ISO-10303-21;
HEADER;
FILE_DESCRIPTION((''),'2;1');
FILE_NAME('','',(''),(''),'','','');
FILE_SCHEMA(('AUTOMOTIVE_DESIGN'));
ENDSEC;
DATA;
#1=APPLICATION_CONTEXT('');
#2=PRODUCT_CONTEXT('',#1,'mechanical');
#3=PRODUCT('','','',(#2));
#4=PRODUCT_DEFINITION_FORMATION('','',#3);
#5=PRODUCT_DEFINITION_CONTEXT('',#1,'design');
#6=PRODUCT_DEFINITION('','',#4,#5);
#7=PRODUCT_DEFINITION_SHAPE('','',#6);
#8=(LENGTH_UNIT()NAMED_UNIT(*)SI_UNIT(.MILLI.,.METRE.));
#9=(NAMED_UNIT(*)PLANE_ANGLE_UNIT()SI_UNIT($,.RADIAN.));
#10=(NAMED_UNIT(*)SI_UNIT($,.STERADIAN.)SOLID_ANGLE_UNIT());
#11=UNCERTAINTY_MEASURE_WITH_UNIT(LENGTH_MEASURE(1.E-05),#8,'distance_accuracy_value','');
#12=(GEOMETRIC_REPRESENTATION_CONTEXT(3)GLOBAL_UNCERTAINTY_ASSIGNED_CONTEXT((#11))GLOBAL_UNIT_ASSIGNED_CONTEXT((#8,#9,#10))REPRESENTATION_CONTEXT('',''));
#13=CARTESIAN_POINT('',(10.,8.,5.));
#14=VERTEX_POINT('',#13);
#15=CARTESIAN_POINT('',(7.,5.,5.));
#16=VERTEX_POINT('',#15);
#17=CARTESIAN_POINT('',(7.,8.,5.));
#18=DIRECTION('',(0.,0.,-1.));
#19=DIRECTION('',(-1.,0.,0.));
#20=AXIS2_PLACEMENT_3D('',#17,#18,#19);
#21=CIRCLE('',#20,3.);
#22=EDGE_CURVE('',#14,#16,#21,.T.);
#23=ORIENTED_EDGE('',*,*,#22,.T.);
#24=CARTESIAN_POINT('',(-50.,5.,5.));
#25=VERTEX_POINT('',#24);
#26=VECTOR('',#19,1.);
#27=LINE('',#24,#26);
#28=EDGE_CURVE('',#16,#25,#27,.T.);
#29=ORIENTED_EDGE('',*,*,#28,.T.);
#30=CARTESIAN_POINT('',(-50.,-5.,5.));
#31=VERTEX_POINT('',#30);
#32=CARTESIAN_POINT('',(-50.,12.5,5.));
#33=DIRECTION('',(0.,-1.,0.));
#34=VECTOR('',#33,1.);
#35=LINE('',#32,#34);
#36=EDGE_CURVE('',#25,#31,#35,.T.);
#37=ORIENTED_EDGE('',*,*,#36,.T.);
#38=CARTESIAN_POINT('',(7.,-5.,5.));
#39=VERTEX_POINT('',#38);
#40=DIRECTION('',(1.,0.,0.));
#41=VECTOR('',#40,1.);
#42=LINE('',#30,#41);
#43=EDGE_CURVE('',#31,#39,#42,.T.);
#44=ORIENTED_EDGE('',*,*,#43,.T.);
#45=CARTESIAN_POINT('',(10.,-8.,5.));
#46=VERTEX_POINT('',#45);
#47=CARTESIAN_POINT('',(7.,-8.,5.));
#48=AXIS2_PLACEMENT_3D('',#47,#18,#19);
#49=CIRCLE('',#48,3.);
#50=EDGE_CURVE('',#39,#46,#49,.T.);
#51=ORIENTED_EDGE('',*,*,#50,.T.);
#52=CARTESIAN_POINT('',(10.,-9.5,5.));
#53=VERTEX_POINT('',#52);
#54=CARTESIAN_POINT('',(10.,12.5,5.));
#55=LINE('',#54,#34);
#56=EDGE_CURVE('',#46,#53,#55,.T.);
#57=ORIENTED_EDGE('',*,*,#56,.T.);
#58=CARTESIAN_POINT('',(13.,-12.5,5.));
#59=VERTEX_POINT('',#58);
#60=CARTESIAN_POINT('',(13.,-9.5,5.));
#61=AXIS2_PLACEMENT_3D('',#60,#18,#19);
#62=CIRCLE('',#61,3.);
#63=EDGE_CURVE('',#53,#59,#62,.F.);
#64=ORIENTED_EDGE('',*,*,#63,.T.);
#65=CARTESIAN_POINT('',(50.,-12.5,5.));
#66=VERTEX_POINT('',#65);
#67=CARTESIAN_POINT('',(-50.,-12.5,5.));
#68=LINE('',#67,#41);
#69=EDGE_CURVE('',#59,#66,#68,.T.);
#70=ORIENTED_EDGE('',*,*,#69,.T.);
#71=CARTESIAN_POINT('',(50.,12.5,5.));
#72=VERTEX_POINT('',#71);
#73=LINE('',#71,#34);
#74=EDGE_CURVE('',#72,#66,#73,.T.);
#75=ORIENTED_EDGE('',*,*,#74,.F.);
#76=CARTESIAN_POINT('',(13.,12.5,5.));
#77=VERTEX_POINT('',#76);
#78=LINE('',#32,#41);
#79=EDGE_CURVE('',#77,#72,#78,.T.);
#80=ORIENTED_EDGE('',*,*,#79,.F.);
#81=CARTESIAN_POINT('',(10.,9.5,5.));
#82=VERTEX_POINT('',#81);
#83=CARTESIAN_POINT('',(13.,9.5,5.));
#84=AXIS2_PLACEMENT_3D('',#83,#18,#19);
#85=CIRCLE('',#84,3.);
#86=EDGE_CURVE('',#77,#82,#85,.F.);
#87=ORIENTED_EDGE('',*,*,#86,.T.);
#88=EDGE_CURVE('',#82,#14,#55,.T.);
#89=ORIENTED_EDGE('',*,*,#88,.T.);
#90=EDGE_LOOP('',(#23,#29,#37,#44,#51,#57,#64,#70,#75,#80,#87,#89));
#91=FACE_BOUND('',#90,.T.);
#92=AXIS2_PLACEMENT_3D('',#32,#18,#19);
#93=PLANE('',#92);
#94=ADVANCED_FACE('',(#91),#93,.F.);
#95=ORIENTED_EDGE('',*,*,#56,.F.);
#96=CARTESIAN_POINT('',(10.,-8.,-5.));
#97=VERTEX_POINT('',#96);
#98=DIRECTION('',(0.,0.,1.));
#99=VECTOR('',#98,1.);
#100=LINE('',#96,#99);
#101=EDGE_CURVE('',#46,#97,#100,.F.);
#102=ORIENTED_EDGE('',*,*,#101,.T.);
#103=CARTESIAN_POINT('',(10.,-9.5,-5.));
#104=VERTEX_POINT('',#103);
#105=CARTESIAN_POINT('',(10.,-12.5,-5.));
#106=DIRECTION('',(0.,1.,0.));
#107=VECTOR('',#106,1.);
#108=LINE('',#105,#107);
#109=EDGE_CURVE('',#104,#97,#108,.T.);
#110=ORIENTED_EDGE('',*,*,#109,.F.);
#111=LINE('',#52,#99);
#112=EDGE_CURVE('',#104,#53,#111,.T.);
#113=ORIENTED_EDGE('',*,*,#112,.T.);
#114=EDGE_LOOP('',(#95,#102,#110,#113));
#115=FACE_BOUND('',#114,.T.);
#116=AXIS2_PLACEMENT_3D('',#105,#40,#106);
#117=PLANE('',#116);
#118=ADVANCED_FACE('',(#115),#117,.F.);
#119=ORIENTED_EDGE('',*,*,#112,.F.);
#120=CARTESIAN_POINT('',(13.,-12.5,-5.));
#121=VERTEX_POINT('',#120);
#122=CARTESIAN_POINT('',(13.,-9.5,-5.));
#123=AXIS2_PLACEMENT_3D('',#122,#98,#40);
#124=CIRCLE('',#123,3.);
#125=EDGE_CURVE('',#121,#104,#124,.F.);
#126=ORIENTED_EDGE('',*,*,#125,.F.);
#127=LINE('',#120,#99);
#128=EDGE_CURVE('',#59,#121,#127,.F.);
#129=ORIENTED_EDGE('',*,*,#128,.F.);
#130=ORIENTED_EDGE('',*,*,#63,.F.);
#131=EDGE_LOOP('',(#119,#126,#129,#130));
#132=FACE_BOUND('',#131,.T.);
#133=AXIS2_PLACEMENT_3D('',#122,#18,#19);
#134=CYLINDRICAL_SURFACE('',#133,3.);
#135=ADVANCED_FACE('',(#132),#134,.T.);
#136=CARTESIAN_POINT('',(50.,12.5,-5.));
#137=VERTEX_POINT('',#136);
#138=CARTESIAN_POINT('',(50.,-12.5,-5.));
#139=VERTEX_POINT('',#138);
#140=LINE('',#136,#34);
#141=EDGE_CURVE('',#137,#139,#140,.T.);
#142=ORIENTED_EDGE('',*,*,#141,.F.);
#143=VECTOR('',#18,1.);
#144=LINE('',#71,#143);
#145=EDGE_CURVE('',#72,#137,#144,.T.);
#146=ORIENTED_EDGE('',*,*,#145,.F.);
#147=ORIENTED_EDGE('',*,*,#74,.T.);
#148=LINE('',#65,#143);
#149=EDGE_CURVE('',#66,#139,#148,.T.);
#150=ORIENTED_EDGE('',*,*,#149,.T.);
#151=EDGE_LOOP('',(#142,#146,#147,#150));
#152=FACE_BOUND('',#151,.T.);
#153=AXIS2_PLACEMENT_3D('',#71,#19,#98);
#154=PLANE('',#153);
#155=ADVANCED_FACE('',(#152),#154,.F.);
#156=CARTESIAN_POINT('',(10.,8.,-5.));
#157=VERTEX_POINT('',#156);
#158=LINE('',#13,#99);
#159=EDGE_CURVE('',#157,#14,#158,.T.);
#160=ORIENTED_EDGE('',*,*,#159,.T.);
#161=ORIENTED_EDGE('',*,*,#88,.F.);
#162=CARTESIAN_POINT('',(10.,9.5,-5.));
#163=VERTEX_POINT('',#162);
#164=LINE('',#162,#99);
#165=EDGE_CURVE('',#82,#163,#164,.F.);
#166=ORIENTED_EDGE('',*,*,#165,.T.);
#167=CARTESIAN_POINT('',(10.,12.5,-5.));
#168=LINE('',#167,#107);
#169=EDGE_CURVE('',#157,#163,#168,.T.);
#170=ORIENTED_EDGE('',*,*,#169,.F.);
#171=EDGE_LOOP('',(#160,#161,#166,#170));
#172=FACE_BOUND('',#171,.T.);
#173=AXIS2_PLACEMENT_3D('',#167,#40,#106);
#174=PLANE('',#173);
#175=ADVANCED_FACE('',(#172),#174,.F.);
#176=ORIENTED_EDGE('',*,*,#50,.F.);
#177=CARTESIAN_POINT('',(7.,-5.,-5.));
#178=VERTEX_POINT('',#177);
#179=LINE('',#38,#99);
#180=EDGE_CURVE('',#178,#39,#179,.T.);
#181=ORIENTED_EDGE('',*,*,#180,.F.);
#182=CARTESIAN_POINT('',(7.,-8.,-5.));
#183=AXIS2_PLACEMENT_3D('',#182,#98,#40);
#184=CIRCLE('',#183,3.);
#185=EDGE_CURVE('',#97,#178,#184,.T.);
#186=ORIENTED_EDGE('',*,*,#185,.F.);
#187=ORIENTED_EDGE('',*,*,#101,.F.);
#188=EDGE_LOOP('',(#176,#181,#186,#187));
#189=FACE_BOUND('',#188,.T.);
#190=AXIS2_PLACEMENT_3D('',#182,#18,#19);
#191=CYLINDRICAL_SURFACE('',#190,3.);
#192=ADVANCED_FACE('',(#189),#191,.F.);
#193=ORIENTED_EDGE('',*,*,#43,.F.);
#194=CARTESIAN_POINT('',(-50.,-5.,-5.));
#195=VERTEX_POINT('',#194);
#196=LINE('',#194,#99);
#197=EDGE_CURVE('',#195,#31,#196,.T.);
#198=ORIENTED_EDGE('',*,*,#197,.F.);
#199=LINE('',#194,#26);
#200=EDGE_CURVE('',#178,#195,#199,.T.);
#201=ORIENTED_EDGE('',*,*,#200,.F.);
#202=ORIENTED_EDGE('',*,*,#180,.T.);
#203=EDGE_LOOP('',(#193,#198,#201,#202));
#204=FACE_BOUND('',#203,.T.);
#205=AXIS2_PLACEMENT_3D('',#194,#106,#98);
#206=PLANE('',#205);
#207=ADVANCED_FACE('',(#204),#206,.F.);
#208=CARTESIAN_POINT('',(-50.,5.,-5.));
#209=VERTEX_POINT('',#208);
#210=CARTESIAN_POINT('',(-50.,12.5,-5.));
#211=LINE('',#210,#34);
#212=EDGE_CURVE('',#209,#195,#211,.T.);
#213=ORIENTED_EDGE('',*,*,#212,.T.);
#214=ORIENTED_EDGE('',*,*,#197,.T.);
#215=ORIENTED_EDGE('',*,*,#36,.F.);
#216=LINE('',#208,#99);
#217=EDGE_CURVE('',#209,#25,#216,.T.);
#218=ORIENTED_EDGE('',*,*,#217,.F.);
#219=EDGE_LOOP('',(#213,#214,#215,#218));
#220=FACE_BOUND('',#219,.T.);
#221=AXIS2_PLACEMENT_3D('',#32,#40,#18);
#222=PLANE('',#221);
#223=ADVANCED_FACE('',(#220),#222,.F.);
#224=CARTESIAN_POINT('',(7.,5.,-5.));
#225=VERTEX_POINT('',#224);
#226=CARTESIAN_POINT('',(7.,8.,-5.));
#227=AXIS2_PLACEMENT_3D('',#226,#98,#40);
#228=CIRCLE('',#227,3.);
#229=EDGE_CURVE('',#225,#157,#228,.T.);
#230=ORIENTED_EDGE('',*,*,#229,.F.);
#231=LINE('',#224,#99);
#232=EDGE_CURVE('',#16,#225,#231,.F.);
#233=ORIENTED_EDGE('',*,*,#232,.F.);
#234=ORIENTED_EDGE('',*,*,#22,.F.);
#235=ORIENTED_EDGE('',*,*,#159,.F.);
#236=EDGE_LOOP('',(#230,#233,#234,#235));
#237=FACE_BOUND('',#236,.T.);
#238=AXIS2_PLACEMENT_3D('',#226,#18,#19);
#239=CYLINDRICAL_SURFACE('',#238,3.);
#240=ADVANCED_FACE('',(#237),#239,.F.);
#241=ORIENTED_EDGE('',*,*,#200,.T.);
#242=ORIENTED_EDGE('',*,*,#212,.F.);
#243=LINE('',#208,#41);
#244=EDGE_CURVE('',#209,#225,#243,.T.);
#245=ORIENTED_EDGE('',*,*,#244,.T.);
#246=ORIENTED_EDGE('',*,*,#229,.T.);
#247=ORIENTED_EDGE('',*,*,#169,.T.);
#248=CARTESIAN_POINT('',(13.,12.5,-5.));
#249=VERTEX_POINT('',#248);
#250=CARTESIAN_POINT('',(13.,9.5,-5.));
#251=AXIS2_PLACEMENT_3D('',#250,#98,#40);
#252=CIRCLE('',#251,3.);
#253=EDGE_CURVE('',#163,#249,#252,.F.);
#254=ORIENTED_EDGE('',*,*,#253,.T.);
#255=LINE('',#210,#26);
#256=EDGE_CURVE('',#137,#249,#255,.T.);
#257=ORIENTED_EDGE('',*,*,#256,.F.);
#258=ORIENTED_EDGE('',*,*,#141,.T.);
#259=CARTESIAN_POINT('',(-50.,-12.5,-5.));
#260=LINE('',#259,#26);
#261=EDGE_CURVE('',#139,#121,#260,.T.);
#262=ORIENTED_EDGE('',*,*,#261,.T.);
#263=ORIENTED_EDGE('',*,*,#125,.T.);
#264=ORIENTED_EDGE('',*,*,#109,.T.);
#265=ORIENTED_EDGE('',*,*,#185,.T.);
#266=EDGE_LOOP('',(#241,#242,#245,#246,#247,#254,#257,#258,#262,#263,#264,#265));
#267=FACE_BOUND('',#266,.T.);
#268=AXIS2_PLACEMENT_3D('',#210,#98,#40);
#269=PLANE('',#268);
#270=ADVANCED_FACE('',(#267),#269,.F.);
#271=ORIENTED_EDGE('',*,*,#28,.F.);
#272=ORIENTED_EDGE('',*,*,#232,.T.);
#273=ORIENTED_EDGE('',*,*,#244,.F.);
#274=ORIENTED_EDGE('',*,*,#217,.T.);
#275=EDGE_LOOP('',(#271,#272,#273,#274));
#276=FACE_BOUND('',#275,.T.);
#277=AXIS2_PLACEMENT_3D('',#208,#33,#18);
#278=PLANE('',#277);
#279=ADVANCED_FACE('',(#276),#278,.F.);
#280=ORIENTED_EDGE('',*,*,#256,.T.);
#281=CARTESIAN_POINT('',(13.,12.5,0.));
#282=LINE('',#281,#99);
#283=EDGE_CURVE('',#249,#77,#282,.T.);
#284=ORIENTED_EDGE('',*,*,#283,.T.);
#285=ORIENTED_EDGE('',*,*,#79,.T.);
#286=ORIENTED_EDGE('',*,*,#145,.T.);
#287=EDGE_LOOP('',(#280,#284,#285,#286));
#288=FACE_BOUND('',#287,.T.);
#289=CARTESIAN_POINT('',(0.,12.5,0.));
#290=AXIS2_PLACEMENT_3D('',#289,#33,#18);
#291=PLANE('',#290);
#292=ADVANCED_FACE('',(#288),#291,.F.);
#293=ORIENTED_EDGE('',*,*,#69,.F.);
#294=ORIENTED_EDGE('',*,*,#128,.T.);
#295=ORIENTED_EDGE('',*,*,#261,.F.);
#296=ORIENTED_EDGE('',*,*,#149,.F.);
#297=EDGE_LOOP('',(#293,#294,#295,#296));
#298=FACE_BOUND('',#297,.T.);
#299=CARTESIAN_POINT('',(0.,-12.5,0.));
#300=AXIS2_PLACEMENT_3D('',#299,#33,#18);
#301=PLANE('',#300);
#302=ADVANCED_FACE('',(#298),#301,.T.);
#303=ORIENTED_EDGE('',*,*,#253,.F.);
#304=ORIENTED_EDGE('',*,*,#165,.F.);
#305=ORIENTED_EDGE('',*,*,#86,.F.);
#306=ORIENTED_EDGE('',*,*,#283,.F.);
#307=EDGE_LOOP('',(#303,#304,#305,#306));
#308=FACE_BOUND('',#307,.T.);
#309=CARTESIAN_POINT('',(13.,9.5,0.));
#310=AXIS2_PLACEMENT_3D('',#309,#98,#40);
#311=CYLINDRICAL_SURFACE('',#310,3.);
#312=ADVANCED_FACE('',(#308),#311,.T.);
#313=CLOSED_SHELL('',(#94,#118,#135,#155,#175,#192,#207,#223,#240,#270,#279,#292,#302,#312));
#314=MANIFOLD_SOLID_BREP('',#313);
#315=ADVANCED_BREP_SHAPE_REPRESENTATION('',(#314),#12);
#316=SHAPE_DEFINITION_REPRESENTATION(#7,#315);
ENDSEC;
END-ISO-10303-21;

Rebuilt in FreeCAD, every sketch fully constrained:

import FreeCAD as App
import Part
import Sketcher

V = App.Vector


def edges_at(feature, points):
    """Names of the edges that pass closest to the given points."""
    edges = feature.Shape.Edges
    near = lambda p: min(range(len(edges)), key=lambda i: edges[i].distToShape(Part.Vertex(*p))[0])
    return sorted({f"Edge{near(p) + 1}" for p in points})

doc = App.newDocument("Part")
params = doc.addObject("Spreadsheet::Sheet", "Params")
for row, (alias, value) in enumerate([
    ("sketch1_width", "100 mm"),
    ("sketch1_height", "10 mm"),
    ("pad1_length", "25 mm"),
    ("sketch2_width", "60 mm"),
    ("sketch2_height", "7.5 mm"),
    ("fillet_radius", "3 mm"),
], start=1):
    params.set(f"A{row}", alias)
    params.set(f"B{row}", "=" + value)
    params.setAlias(f"B{row}", alias)

body = doc.addObject("PartDesign::Body", "Body")

# Sketch on XZ plane
sketch1 = body.newObject("Sketcher::SketchObject", "Sketch")
sketch1.AttachmentSupport = (doc.getObject("XZ_Plane"), [""])
sketch1.MapMode = "FlatFace"
sketch1.addGeometry(Part.LineSegment(V(-50, -5, 0), V(-50, 5, 0)), False)
sketch1.addGeometry(Part.LineSegment(V(-50, 5, 0), V(50, 5, 0)), False)
sketch1.addGeometry(Part.LineSegment(V(50, 5, 0), V(50, -5, 0)), False)
sketch1.addGeometry(Part.LineSegment(V(50, -5, 0), V(-50, -5, 0)), False)
sketch1.addConstraint(Sketcher.Constraint("Coincident", 0, 2, 1, 1))
sketch1.addConstraint(Sketcher.Constraint("Coincident", 1, 2, 2, 1))
sketch1.addConstraint(Sketcher.Constraint("Coincident", 2, 2, 3, 1))
sketch1.addConstraint(Sketcher.Constraint("Coincident", 3, 2, 0, 1))
sketch1.addConstraint(Sketcher.Constraint("Vertical", 0))
sketch1.addConstraint(Sketcher.Constraint("Horizontal", 1))
sketch1.addConstraint(Sketcher.Constraint("Vertical", 2))
sketch1.addConstraint(Sketcher.Constraint("Horizontal", 3))
sketch1.addConstraint(Sketcher.Constraint("Symmetric", 0, 2, 2, 2, -1, 1))
sketch1.addConstraint(Sketcher.Constraint("DistanceX", 1, 1, 1, 2, 100.0))
sketch1.addConstraint(Sketcher.Constraint("DistanceY", 0, 1, 0, 2, 10.0))
sketch1.setExpression("Constraints[9]", "Params.sketch1_width")
sketch1.setExpression("Constraints[10]", "Params.sketch1_height")
pad1 = body.newObject("PartDesign::Pad", "Pad")
pad1.Profile = sketch1
pad1.setExpression("Length", "Params.pad1_length")
pad1.Midplane = True

# Sketch on XY plane
sketch2 = body.newObject("Sketcher::SketchObject", "Sketch001")
sketch2.AttachmentSupport = (doc.getObject("XY_Plane"), [""])
sketch2.MapMode = "FlatFace"
sketch2.AttachmentOffset = App.Placement(V(0, 0, 5), App.Rotation())
sketch2.addGeometry(Part.LineSegment(V(-50, 12, 0), V(-50, 5, 0)), False)
sketch2.addGeometry(Part.LineSegment(V(-50, 5, 0), V(10, 5, 0)), False)
sketch2.addGeometry(Part.LineSegment(V(10, 5, 0), V(10, 12, 0)), False)
sketch2.addGeometry(Part.LineSegment(V(10, 12, 0), V(-50, 12, 0)), False)
sketch2.addGeometry(Part.LineSegment(V(-50, -5, 0), V(-50, -12, 0)), False)
sketch2.addGeometry(Part.LineSegment(V(-50, -12, 0), V(10, -12, 0)), False)
sketch2.addGeometry(Part.LineSegment(V(10, -12, 0), V(10, -5, 0)), False)
sketch2.addGeometry(Part.LineSegment(V(10, -5, 0), V(-50, -5, 0)), False)
sketch2.addConstraint(Sketcher.Constraint("Coincident", 0, 2, 1, 1))
sketch2.addConstraint(Sketcher.Constraint("Coincident", 1, 2, 2, 1))
sketch2.addConstraint(Sketcher.Constraint("Coincident", 2, 2, 3, 1))
sketch2.addConstraint(Sketcher.Constraint("Coincident", 3, 2, 0, 1))
sketch2.addConstraint(Sketcher.Constraint("Coincident", 4, 2, 5, 1))
sketch2.addConstraint(Sketcher.Constraint("Coincident", 5, 2, 6, 1))
sketch2.addConstraint(Sketcher.Constraint("Coincident", 6, 2, 7, 1))
sketch2.addConstraint(Sketcher.Constraint("Coincident", 7, 2, 4, 1))
sketch2.addConstraint(Sketcher.Constraint("Vertical", 0))
sketch2.addConstraint(Sketcher.Constraint("Horizontal", 1))
sketch2.addConstraint(Sketcher.Constraint("Vertical", 2))
sketch2.addConstraint(Sketcher.Constraint("Horizontal", 3))
sketch2.addConstraint(Sketcher.Constraint("Vertical", 4))
sketch2.addConstraint(Sketcher.Constraint("Horizontal", 5))
sketch2.addConstraint(Sketcher.Constraint("Vertical", 6))
sketch2.addConstraint(Sketcher.Constraint("Horizontal", 7))
sketch2.addConstraint(Sketcher.Constraint("Symmetric", 3, 2, 4, 2, -1))
sketch2.addConstraint(Sketcher.Constraint("Symmetric", 1, 2, 6, 2, -1))
sketch2.addConstraint(Sketcher.Constraint("DistanceX", 1, 1, 1, 2, 60.0))
sketch2.addConstraint(Sketcher.Constraint("DistanceY", 0, 2, 0, 1, 7.5))
sketch2.addConstraint(Sketcher.Constraint("DistanceX", 0, 2, -1, 1, 50.0))
sketch2.addConstraint(Sketcher.Constraint("DistanceY", -1, 1, 0, 2, 5.0))
sketch2.setExpression("Constraints[18]", "Params.sketch2_width")
sketch2.setExpression("Constraints[19]", "Params.sketch2_height")
pocket1 = body.newObject("PartDesign::Pocket", "Pocket")
pocket1.Profile = sketch2
pocket1.Type = "ThroughAll"
pocket1.Midplane = True
doc.recompute()

fillet = body.newObject("PartDesign::Fillet", "Fillet")
fillet.Base = (pocket1, edges_at(pocket1, [
    (10, 5, 0),
    (10, 12.5, 0),
    (10, -12.5, 0),
    (10, -5, 0),
]))
fillet.setExpression("Radius", "Params.fillet_radius")

doc.recompute()
